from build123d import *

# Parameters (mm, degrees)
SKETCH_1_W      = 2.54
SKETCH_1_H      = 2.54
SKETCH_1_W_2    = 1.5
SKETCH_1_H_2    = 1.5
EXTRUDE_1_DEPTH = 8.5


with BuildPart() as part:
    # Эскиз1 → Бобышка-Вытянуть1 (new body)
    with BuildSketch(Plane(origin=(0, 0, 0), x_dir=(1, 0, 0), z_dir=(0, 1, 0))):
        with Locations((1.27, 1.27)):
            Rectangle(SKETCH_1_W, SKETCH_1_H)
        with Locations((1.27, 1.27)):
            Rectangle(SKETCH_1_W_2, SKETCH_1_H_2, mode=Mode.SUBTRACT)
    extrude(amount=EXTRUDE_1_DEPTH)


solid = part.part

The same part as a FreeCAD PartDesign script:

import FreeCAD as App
import Part
import Sketcher
from FreeCAD import Vector

doc = App.newDocument("Part")
body = doc.addObject("PartDesign::Body", "Body")

# Sketch on XZ plane
sketch1 = body.newObject("Sketcher::SketchObject", "Sketch")
sketch1.AttachmentSupport = (doc.getObject("XZ_Plane"), [""])
sketch1.MapMode = "FlatFace"
sketch1.addGeometry([
    Part.LineSegment(Vector(0, -2.5, 0), Vector(0, 0, 0)),  # 0
    Part.LineSegment(Vector(0, 0, 0), Vector(2.5, 0, 0)),  # 1
    Part.LineSegment(Vector(2.5, 0, 0), Vector(2.5, -2.5, 0)),  # 2
    Part.LineSegment(Vector(2.5, -2.5, 0), Vector(0, -2.5, 0)),  # 3
    Part.LineSegment(Vector(2, -0.5, 0), Vector(0.5, -0.5, 0)),  # 4
    Part.LineSegment(Vector(0.5, -0.5, 0), Vector(0.5, -2, 0)),  # 5
    Part.LineSegment(Vector(0.5, -2, 0), Vector(2, -2, 0)),  # 6
    Part.LineSegment(Vector(2, -2, 0), Vector(2, -0.5, 0)),  # 7
], False)
sketch1.addConstraint([
    Sketcher.Constraint("Coincident", 0, 2, 1, 1),
    Sketcher.Constraint("Coincident", 1, 2, 2, 1),
    Sketcher.Constraint("Coincident", 2, 2, 3, 1),
    Sketcher.Constraint("Coincident", 3, 2, 0, 1),
    Sketcher.Constraint("Coincident", 4, 2, 5, 1),
    Sketcher.Constraint("Coincident", 5, 2, 6, 1),
    Sketcher.Constraint("Coincident", 6, 2, 7, 1),
    Sketcher.Constraint("Coincident", 7, 2, 4, 1),
    Sketcher.Constraint("Vertical", 0),
    Sketcher.Constraint("Horizontal", 1),
    Sketcher.Constraint("Vertical", 2),
    Sketcher.Constraint("Horizontal", 3),
    Sketcher.Constraint("Horizontal", 4),
    Sketcher.Constraint("Vertical", 5),
    Sketcher.Constraint("Horizontal", 6),
    Sketcher.Constraint("Vertical", 7),
    Sketcher.Constraint("Coincident", 0, 2, -1, 1),
    Sketcher.Constraint("Equal", 3, 0),
    Sketcher.Constraint("Equal", 6, 5),
    Sketcher.Constraint("DistanceX", 4, 2, 4, 1, 1.5),
    Sketcher.Constraint("DistanceX", 1, 1, 1, 2, 2.54),
    Sketcher.Constraint("DistanceX", -1, 1, 4, 2, 0.52),
    Sketcher.Constraint("DistanceY", 4, 2, -1, 1, 0.52),
])
pad1 = body.newObject("PartDesign::Pad", "Pad")
pad1.Profile = sketch1
pad1.Length = 8.5
pad1.Reversed = True

doc.recompute()
